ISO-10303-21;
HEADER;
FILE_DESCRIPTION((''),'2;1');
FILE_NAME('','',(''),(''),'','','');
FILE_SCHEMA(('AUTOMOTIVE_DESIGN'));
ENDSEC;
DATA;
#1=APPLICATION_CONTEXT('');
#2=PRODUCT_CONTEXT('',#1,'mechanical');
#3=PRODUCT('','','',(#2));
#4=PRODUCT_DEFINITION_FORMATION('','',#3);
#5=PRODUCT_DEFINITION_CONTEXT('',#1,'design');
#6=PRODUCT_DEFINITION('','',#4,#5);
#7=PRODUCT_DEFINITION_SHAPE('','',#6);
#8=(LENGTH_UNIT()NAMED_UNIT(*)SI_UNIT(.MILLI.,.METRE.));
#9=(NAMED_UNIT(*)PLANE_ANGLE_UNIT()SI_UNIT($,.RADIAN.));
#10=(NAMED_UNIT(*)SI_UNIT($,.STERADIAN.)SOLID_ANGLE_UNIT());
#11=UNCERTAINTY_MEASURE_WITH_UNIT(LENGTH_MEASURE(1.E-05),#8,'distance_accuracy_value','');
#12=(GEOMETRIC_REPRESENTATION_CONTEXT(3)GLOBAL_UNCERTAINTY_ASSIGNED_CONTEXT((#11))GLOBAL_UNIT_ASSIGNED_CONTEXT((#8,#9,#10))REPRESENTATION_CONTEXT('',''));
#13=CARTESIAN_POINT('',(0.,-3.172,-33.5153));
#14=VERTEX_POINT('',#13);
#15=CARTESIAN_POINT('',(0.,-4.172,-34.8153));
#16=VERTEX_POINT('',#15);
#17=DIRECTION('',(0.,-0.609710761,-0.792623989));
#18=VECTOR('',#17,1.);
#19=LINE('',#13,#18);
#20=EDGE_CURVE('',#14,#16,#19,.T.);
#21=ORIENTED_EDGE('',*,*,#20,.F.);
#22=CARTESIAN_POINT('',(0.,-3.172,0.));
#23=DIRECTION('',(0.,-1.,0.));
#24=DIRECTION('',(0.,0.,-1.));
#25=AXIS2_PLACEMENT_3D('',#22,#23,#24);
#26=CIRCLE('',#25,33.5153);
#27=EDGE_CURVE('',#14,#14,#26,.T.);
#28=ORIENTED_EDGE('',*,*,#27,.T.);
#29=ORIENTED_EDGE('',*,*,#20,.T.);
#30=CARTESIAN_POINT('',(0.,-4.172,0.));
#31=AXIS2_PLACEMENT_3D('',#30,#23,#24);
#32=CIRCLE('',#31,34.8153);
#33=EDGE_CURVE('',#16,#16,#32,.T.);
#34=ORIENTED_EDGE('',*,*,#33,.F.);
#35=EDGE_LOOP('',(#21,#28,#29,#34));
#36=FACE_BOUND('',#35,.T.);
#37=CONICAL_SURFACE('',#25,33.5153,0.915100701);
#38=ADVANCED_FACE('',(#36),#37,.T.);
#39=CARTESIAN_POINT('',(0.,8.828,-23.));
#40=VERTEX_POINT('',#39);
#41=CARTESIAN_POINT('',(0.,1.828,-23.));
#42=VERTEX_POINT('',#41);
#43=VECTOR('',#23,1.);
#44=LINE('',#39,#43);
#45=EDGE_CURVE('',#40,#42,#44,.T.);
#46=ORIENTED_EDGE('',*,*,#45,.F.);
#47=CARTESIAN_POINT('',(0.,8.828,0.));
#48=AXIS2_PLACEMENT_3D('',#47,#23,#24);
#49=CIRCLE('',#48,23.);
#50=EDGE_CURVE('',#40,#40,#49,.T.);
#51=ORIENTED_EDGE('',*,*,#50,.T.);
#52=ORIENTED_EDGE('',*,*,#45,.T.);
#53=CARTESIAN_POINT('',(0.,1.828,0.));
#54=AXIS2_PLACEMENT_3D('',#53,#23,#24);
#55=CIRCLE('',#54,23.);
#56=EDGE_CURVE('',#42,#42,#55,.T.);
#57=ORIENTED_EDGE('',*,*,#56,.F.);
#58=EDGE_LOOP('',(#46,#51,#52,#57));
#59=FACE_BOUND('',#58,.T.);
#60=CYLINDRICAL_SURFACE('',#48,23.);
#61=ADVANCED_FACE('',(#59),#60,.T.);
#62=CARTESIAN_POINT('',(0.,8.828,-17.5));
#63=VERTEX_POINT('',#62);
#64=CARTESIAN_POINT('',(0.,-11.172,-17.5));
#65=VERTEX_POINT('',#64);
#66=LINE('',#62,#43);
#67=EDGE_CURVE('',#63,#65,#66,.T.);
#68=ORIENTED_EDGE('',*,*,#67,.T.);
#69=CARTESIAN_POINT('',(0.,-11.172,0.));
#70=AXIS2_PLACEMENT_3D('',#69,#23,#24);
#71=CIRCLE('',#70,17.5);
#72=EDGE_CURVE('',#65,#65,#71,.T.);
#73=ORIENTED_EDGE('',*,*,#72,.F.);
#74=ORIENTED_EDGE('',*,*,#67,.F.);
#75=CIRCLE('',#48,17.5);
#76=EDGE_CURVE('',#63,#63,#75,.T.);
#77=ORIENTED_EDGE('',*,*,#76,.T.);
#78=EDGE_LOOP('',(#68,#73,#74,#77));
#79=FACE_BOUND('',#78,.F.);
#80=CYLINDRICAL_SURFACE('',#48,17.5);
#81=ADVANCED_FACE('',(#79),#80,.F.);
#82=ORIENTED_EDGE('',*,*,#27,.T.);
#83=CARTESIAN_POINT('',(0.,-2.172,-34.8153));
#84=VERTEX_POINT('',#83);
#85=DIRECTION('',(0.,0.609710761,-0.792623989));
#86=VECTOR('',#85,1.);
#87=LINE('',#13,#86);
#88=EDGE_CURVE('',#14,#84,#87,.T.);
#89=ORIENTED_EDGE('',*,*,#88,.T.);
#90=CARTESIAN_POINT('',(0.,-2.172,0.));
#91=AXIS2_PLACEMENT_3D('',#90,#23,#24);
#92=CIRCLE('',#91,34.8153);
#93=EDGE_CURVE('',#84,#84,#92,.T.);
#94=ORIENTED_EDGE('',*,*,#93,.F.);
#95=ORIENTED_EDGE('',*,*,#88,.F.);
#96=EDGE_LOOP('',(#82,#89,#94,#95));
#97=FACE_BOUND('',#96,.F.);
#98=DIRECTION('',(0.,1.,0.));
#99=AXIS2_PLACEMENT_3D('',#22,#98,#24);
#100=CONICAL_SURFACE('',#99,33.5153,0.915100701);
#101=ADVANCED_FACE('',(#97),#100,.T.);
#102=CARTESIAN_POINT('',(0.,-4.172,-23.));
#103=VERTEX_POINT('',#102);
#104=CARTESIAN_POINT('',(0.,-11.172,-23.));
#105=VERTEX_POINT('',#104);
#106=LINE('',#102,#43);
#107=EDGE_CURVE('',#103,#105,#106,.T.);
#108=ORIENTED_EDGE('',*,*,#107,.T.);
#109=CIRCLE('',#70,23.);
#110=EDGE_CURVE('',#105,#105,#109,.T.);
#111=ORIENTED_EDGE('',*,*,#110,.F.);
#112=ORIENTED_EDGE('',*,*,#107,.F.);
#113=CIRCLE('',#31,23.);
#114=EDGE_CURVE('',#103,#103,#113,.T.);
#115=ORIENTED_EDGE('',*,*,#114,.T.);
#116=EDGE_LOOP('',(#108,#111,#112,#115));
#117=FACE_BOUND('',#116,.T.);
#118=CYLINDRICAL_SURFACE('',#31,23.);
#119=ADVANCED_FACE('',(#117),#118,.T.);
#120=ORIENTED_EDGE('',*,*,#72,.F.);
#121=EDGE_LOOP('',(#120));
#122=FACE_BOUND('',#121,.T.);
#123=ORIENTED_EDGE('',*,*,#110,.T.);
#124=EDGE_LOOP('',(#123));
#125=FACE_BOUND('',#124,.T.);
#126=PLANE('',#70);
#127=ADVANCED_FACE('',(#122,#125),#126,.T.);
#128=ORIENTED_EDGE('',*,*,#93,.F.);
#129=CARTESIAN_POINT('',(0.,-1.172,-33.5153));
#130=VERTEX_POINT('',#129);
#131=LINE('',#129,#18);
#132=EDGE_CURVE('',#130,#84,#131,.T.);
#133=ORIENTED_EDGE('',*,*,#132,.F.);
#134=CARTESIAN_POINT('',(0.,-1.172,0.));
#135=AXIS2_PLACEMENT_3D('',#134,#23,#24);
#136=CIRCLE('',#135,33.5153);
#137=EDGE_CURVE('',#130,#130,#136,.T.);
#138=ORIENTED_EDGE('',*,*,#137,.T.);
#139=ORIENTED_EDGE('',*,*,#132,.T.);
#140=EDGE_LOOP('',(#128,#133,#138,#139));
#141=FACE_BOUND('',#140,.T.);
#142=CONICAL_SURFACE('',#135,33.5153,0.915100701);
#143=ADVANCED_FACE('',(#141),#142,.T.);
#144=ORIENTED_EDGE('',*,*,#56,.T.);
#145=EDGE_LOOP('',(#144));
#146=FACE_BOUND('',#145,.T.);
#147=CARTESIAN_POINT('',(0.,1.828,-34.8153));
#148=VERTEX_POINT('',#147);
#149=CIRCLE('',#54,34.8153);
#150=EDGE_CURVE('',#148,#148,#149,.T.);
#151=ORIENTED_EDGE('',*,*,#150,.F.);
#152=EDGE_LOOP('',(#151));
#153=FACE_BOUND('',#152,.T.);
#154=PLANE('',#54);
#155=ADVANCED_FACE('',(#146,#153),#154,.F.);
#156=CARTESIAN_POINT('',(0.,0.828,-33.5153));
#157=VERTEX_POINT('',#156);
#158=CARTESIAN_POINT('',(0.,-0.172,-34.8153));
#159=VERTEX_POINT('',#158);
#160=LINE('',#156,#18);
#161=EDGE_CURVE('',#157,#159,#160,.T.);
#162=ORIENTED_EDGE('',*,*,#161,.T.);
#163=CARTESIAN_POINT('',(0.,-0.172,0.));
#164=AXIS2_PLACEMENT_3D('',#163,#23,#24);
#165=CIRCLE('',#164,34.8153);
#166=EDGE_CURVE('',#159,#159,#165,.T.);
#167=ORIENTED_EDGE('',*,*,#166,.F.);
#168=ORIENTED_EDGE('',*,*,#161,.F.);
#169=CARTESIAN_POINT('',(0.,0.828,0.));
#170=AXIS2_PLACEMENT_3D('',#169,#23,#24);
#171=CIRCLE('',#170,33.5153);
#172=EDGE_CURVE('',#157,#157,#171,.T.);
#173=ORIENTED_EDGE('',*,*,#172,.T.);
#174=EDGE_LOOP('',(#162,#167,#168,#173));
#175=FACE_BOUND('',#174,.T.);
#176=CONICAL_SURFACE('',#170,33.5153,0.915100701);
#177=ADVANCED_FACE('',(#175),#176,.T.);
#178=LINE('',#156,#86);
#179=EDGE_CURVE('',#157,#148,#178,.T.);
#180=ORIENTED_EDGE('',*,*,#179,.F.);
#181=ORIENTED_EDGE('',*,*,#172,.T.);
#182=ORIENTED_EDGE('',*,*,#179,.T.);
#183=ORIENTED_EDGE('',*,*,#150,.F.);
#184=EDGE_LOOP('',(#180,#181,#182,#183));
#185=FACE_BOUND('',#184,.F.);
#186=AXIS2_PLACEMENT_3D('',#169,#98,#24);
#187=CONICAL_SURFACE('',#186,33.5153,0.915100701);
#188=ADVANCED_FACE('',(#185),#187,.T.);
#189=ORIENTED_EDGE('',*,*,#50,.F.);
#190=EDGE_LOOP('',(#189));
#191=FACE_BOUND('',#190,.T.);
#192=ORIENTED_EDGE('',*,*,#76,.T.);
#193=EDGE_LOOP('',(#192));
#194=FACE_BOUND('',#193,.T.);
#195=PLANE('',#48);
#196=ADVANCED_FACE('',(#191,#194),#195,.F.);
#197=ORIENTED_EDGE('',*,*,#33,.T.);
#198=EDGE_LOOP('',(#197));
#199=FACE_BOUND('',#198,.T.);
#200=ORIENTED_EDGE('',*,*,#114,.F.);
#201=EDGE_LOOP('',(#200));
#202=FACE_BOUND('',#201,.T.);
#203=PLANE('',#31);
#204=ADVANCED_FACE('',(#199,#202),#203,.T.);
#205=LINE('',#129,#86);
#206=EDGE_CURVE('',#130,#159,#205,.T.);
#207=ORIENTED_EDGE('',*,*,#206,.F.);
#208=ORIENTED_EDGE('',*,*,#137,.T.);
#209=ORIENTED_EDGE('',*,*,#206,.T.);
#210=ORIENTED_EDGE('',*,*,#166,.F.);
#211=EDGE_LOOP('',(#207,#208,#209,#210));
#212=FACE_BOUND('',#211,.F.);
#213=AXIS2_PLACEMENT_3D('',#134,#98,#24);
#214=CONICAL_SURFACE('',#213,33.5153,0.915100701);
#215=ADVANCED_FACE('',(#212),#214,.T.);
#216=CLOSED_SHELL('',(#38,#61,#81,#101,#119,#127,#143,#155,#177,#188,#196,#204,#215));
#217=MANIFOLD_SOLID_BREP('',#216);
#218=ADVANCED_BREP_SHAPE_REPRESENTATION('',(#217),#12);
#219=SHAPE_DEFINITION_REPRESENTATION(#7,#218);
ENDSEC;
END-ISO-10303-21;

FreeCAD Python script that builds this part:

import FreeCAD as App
import Part
import Sketcher
Q = App.Units.Quantity


def add_polygon(sketch, points):
    """Adds a closed chain of lines whose ends are joined by coincident constraints."""
    first, n = sketch.GeometryCount, len(points)
    for a, b in zip(points, points[1:] + points[:1]):
        sketch.addGeometry(Part.LineSegment(App.Vector(*a, 0), App.Vector(*b, 0)), False)
    for i in range(n):
        sketch.addConstraint(Sketcher.Constraint("Coincident", first + i, 2, first + (i + 1) % n, 1))

doc = App.newDocument("Part")
body = doc.addObject("PartDesign::Body", "Body")

# Sketch on YZ plane
sketch1 = body.newObject("Sketcher::SketchObject", "Sketch")
sketch1.AttachmentSupport = (doc.getObject("YZ_Plane"), [""])
sketch1.MapMode = "FlatFace"
add_polygon(sketch1, [(8.828, -23), (8.828, -17.5), (-11.172, -17.5), (-11.172, -23), (-4.172, -23), (-4.172, -34.8153), (1.828, -34.8153), (1.828, -23)])  # lines 0-7
sketch1.addConstraint(Sketcher.Constraint("Vertical", 0))
sketch1.addConstraint(Sketcher.Constraint("Horizontal", 1))
sketch1.addConstraint(Sketcher.Constraint("Vertical", 2))
sketch1.addConstraint(Sketcher.Constraint("Horizontal", 3))
sketch1.addConstraint(Sketcher.Constraint("Vertical", 4))
sketch1.addConstraint(Sketcher.Constraint("Horizontal", 5))
sketch1.addConstraint(Sketcher.Constraint("Vertical", 6))
sketch1.addConstraint(Sketcher.Constraint("Horizontal", 7))
sketch1.addConstraint(Sketcher.Constraint("Horizontal", 3, 2, 6, 2))
sketch1.addConstraint(Sketcher.Constraint("Equal", 3, 7))
sketch1.addConstraint(Sketcher.Constraint("DistanceX", 3, 1, 3, 2, Q("7 mm")))
sketch1.addConstraint(Sketcher.Constraint("DistanceX", 5, 1, 5, 2, Q("6 mm")))
sketch1.addConstraint(Sketcher.Constraint("DistanceY", 0, 1, 0, 2, Q("5.5 mm")))
sketch1.addConstraint(Sketcher.Constraint("DistanceY", 2, 2, -1, 1, Q("23 mm")))
sketch1.addConstraint(Sketcher.Constraint("DistanceY", 4, 2, 4, 1, Q("11.8153 mm")))
sketch1.addConstraint(Sketcher.Constraint("DistanceX", -1, 1, 0, 2, Q("8.828 mm")))
revolution = body.newObject("PartDesign::Revolution", "Revolution")
revolution.Profile = sketch1
revolution.ReferenceAxis = (sketch1, ["H_Axis"])
revolution.Angle = 360

# Sketch on YZ plane
sketch2 = body.newObject("Sketcher::SketchObject", "Sketch001")
sketch2.AttachmentSupport = (doc.getObject("YZ_Plane"), [""])
sketch2.MapMode = "FlatFace"
add_polygon(sketch2, [(1.828, -34.8153), (0.828, -33.5153), (-0.172, -34.8153)])  # lines 0-2
sketch2.addConstraint(Sketcher.Constraint("Horizontal", 2))
sketch2.addConstraint(Sketcher.Constraint("Equal", 0, 1))
sketch2.addConstraint(Sketcher.Constraint("DistanceX", 2, 1, 2, 2, Q("2 mm")))
sketch2.addConstraint(Sketcher.Constraint("DistanceY", 1, 2, 0, 2, Q("1.3 mm")))
sketch2.addConstraint(Sketcher.Constraint("DistanceX", -1, 1, 0, 2, Q("0.828 mm")))
sketch2.addConstraint(Sketcher.Constraint("DistanceY", 0, 2, -1, 1, Q("33.5153 mm")))
groove = body.newObject("PartDesign::Groove", "Groove")
groove.Profile = sketch2
groove.ReferenceAxis = (sketch2, ["H_Axis"])
groove.Angle = 360
doc.recompute()

linearpattern = body.newObject("PartDesign::LinearPattern", "LinearPattern")
linearpattern.Originals = [groove]
linearpattern.Direction = (doc.getObject("Y_Axis"), [""])
linearpattern.Mode = "offset"
linearpattern.Offset = 2
linearpattern.Occurrences = 4
linearpattern.Reversed = True
body.Tip = linearpattern

doc.recompute()
